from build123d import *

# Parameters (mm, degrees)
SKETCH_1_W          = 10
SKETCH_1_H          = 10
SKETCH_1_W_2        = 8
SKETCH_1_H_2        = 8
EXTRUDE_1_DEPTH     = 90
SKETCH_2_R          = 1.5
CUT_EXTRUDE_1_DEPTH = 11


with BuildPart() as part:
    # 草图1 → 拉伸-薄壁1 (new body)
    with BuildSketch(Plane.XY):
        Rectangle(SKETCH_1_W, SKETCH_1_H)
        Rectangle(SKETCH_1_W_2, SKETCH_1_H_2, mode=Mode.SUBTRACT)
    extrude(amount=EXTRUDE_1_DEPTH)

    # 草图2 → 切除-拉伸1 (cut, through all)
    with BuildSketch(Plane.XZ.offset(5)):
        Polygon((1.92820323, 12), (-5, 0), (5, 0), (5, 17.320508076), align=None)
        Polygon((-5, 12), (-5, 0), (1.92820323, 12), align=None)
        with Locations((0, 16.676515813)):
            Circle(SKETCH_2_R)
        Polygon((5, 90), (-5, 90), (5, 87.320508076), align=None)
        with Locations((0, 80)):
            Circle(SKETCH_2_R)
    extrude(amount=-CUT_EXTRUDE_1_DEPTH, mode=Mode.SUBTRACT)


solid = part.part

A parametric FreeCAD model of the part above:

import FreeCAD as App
import Part
import Sketcher

V = App.Vector
Q = App.Units.Quantity

doc = App.newDocument("Part")
body = doc.addObject("PartDesign::Body", "Body")

sketch1 = body.newObject("Sketcher::SketchObject", "Sketch")
sketch1.AttachmentSupport = (doc.getObject("XY_Plane"), [""])
sketch1.MapMode = "FlatFace"
sketch1.addGeometry([
    Part.LineSegment(V(-5, 5, 0), V(-5, -5, 0)),
    Part.LineSegment(V(-5, -5, 0), V(5, -5, 0)),
    Part.LineSegment(V(5, -5, 0), V(5, 5, 0)),
    Part.LineSegment(V(5, 5, 0), V(-5, 5, 0)),
    Part.LineSegment(V(4, -4, 0), V(-4, -4, 0)),
    Part.LineSegment(V(-4, -4, 0), V(-4, 4, 0)),
    Part.LineSegment(V(-4, 4, 0), V(4, 4, 0)),
    Part.LineSegment(V(4, 4, 0), V(4, -4, 0)),
], False)
sketch1.addConstraint([
    Sketcher.Constraint("Coincident", 0, 2, 1, 1),
    Sketcher.Constraint("Coincident", 1, 2, 2, 1),
    Sketcher.Constraint("Coincident", 2, 2, 3, 1),
    Sketcher.Constraint("Coincident", 3, 2, 0, 1),
    Sketcher.Constraint("Coincident", 4, 2, 5, 1),
    Sketcher.Constraint("Coincident", 5, 2, 6, 1),
    Sketcher.Constraint("Coincident", 6, 2, 7, 1),
    Sketcher.Constraint("Coincident", 7, 2, 4, 1),
    Sketcher.Constraint("Vertical", 0),
    Sketcher.Constraint("Horizontal", 1),
    Sketcher.Constraint("Vertical", 2),
    Sketcher.Constraint("Horizontal", 3),
    Sketcher.Constraint("Horizontal", 4),
    Sketcher.Constraint("Vertical", 5),
    Sketcher.Constraint("Horizontal", 6),
    Sketcher.Constraint("Vertical", 7),
    Sketcher.Constraint("Symmetric", 0, 2, 2, 2, -1, 1),
    Sketcher.Constraint("Symmetric", 4, 2, 6, 2, -1, 1),
    Sketcher.Constraint("Equal", 3, 0),
    Sketcher.Constraint("Equal", 6, 5),
    Sketcher.Constraint("DistanceX", 1, 1, 1, 2, Q("10 mm")),
    Sketcher.Constraint("DistanceX", 4, 2, 4, 1, Q("8 mm")),
])
pad1 = body.newObject("PartDesign::Pad", "Pad")
pad1.Profile = sketch1
pad1.Length = 90

sketch2 = body.newObject("Sketcher::SketchObject", "Sketch001")
sketch2.AttachmentSupport = (doc.getObject("XZ_Plane"), [""])
sketch2.MapMode = "FlatFace"
sketch2.AttachmentOffset = App.Placement(V(0, 0, 5), App.Rotation())
sketch2.addGeometry([
    Part.LineSegment(V(-5, 0, 0), V(5, 0, 0)),
    Part.LineSegment(V(5, 0, 0), V(5, 17.3, 0)),
    Part.LineSegment(V(5, 17.3, 0), V(1.9, 12, 0)),
    Part.LineSegment(V(1.9, 12, 0), V(-5, 12, 0)),
    Part.LineSegment(V(-5, 12, 0), V(-5, 0, 0)),
    Part.Circle(V(0, 16.7, 0), V(0, 0, 1), 1.5),
    Part.LineSegment(V(5, 90, 0), V(-5, 90, 0)),
    Part.LineSegment(V(-5, 90, 0), V(5, 87.3, 0)),
    Part.LineSegment(V(5, 87.3, 0), V(5, 90, 0)),
    Part.Circle(V(0, 80, 0), V(0, 0, 1), 1.5),
], False)
sketch2.addConstraint([
    Sketcher.Constraint("Coincident", 0, 2, 1, 1),
    Sketcher.Constraint("Coincident", 1, 2, 2, 1),
    Sketcher.Constraint("Coincident", 2, 2, 3, 1),
    Sketcher.Constraint("Coincident", 3, 2, 4, 1),
    Sketcher.Constraint("Coincident", 4, 2, 0, 1),
    Sketcher.Constraint("Coincident", 6, 2, 7, 1),
    Sketcher.Constraint("Coincident", 7, 2, 8, 1),
    Sketcher.Constraint("Coincident", 8, 2, 6, 1),
    Sketcher.Constraint("Horizontal", 0),
    Sketcher.Constraint("Vertical", 1),
    Sketcher.Constraint("Horizontal", 3),
    Sketcher.Constraint("Vertical", 4),
    Sketcher.Constraint("Horizontal", 6),
    Sketcher.Constraint("Vertical", 8),
    Sketcher.Constraint("Equal", 5, 9),
    Sketcher.Constraint("Symmetric", 0, 2, 4, 2, -1, 1),
    Sketcher.Constraint("PointOnObject", 5, 3, -2),
    Sketcher.Constraint("PointOnObject", 9, 3, -2),
    Sketcher.Constraint("Vertical", 4, 2, 6, 2),
    Sketcher.Constraint("Vertical", 1, 2, 7, 2),
    Sketcher.Constraint("Diameter", 5, Q("3 mm")),
    Sketcher.Constraint("DistanceX", 0, 1, 0, 2, Q("10 mm")),
    Sketcher.Constraint("DistanceY", 4, 2, 4, 1, Q("12 mm")),
    Sketcher.Constraint("Angle", 2, Q("-120 deg")),
    Sketcher.Constraint("Angle", 7, Q("-15 deg")),
    Sketcher.Constraint("DistanceY", -1, 1, 9, 3, Q("80 mm")),
    Sketcher.Constraint("DistanceY", -1, 1, 6, 2, Q("90 mm")),
    Sketcher.Constraint("DistanceY", 1, 2, 7, 2, Q("70 mm")),
    Sketcher.Constraint("DistanceY", -1, 1, 5, 3, Q("16.676516 mm")),
])
pocket1 = body.newObject("PartDesign::Pocket", "Pocket")
pocket1.Profile = sketch2
pocket1.Type = "ThroughAll"

doc.recompute()
